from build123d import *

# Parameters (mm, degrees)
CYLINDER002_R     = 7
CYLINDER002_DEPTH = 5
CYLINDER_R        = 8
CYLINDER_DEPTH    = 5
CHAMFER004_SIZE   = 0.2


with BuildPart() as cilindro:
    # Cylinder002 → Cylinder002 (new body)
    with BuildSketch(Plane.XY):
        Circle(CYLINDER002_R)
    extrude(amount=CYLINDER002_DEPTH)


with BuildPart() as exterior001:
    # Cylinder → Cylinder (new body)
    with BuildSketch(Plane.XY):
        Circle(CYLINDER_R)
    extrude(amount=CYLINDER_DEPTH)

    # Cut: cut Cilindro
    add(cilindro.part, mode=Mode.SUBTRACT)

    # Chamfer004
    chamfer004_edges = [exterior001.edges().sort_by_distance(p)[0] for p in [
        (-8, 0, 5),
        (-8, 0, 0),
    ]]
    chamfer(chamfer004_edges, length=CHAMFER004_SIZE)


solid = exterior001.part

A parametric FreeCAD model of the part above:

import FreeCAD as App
import Part
import Sketcher


def edges_at(feature, points):
    """Names of the edges that pass closest to the given points."""
    edges = feature.Shape.Edges
    near = lambda p: min(range(len(edges)), key=lambda i: edges[i].distToShape(Part.Vertex(*p))[0])
    return sorted({f"Edge{near(p) + 1}" for p in points})

doc = App.newDocument("Part")
body = doc.addObject("PartDesign::Body", "Body")

# Sketch on XY plane
sketch1 = body.newObject("Sketcher::SketchObject", "Sketch")
sketch1.AttachmentSupport = (doc.getObject("XY_Plane"), [""])
sketch1.MapMode = "FlatFace"
sketch1.addGeometry(Part.Circle(App.Vector(0, 0, 0), App.Vector(0, 0, 1), 7), False)
sketch1.addConstraint([
    Sketcher.Constraint("Coincident", 0, 3, -1, 1),
    Sketcher.Constraint("Diameter", 0, 14.0),
])
pad1 = body.newObject("PartDesign::Pad", "Pad")
pad1.Profile = sketch1
pad1.Length = 5
body2 = doc.addObject("PartDesign::Body", "Body001")

# Sketch on XY plane
sketch2 = body2.newObject("Sketcher::SketchObject", "Sketch001")
sketch2.AttachmentSupport = (doc.getObject("XY_Plane001"), [""])
sketch2.MapMode = "FlatFace"
sketch2.addGeometry(Part.Circle(App.Vector(0, 0, 0), App.Vector(0, 0, 1), 8), False)
sketch2.addConstraint([
    Sketcher.Constraint("Coincident", 0, 3, -1, 1),
    Sketcher.Constraint("Diameter", 0, 16.0),
])
pad2 = body2.newObject("PartDesign::Pad", "Pad001")
pad2.Profile = sketch2
pad2.Length = 5
doc.recompute()

boolean = body2.newObject("PartDesign::Boolean", "Boolean")
boolean.Type = "Cut"
boolean.addObjects([body])
doc.recompute()

chamfer = body2.newObject("PartDesign::Chamfer", "Chamfer")
chamfer.Base = (boolean, edges_at(boolean, [(-8, 0, 5), (-8, 0, 0)]))
chamfer.Size = 0.2

doc.recompute()
